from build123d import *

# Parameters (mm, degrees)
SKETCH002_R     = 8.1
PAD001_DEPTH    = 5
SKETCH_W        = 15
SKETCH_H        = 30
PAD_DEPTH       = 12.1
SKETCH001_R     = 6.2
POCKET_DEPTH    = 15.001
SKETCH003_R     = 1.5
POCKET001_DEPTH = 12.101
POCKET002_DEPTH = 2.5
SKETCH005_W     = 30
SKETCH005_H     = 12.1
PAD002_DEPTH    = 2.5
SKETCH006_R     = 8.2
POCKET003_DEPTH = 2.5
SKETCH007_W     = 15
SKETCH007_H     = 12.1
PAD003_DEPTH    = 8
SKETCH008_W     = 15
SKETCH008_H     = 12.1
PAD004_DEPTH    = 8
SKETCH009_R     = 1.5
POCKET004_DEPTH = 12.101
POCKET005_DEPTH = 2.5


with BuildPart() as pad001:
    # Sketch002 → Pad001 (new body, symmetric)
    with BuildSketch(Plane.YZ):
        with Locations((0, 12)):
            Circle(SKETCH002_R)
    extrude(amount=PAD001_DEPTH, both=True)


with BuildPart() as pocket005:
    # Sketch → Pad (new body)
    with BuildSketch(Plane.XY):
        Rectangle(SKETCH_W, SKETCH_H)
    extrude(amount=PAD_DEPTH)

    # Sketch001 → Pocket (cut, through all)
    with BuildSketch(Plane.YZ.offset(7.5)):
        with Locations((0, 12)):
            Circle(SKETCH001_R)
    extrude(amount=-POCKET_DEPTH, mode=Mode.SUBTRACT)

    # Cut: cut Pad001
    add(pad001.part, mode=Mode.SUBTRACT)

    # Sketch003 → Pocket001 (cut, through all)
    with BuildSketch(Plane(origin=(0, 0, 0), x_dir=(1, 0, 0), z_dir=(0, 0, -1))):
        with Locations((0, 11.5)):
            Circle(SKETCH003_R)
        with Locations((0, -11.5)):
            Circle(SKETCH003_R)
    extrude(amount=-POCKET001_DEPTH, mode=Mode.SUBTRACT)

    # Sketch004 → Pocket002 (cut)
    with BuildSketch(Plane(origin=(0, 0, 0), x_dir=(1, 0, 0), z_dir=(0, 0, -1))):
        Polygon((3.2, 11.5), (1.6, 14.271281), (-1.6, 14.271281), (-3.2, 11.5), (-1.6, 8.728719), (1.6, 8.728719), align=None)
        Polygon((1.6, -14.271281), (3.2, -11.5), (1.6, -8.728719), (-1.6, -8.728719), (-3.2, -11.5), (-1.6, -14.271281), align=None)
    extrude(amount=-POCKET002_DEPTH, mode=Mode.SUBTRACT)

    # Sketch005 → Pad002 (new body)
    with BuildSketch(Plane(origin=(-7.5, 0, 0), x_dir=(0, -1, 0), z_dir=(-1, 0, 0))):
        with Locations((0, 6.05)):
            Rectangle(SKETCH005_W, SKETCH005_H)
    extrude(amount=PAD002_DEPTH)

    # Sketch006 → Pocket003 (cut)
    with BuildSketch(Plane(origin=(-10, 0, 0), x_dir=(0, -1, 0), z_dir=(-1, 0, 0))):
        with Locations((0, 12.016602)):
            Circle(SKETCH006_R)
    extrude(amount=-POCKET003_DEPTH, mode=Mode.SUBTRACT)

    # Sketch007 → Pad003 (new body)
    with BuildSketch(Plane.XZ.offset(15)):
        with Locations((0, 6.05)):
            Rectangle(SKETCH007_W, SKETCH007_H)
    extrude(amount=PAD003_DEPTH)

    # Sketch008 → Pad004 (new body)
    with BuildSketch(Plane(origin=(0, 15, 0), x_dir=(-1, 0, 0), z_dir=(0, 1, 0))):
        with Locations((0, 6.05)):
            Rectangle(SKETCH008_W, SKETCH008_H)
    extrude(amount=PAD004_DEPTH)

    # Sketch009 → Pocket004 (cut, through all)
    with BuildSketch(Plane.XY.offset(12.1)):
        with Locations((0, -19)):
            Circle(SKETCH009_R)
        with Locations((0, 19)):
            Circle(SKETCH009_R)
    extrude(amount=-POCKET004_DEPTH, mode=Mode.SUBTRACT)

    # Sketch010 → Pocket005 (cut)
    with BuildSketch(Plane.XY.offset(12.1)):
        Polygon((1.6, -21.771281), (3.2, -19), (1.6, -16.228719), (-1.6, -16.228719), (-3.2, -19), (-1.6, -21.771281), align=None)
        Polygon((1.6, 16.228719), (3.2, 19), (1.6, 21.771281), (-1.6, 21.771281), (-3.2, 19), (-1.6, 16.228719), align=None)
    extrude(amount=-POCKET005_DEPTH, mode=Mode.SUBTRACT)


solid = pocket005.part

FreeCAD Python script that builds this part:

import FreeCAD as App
import Part
import Sketcher
Q = App.Units.Quantity

doc = App.newDocument("Part")
body = doc.addObject("PartDesign::Body", "Body")

# Sketch on YZ plane
sketch1 = body.newObject("Sketcher::SketchObject", "Sketch")
sketch1.AttachmentSupport = (doc.getObject("YZ_Plane"), [""])
sketch1.MapMode = "FlatFace"
sketch1.addGeometry(Part.Circle(App.Vector(0, 12, 0), App.Vector(0, 0, 1), 8), False)
sketch1.addConstraint([
    Sketcher.Constraint("PointOnObject", 0, 3, -2),
    Sketcher.Constraint("Diameter", 0, 16.2),
    Sketcher.Constraint("DistanceY", -1, 1, 0, 3, 12.0),
])
pad1 = body.newObject("PartDesign::Pad", "Pad")
pad1.Profile = sketch1
pad1.Length = 10
pad1.Midplane = True
body2 = doc.addObject("PartDesign::Body", "Body001")

# Sketch on XY plane
sketch2 = body2.newObject("Sketcher::SketchObject", "Sketch001")
sketch2.AttachmentSupport = (doc.getObject("XY_Plane001"), [""])
sketch2.MapMode = "FlatFace"
sketch2.addGeometry([
    Part.LineSegment(App.Vector(-8, 15, 0), App.Vector(-8, -15, 0)),
    Part.LineSegment(App.Vector(-8, -15, 0), App.Vector(8, -15, 0)),
    Part.LineSegment(App.Vector(8, -15, 0), App.Vector(8, 15, 0)),
    Part.LineSegment(App.Vector(8, 15, 0), App.Vector(-8, 15, 0)),
], False)
sketch2.addConstraint([
    Sketcher.Constraint("Coincident", 0, 2, 1, 1),
    Sketcher.Constraint("Coincident", 1, 2, 2, 1),
    Sketcher.Constraint("Coincident", 2, 2, 3, 1),
    Sketcher.Constraint("Coincident", 3, 2, 0, 1),
    Sketcher.Constraint("Vertical", 0),
    Sketcher.Constraint("Horizontal", 1),
    Sketcher.Constraint("Vertical", 2),
    Sketcher.Constraint("Horizontal", 3),
    Sketcher.Constraint("Symmetric", 0, 2, 2, 2, -1, 1),
    Sketcher.Constraint("DistanceX", 1, 1, 1, 2, 15.0),
    Sketcher.Constraint("DistanceY", 0, 2, 0, 1, 30.0),
])
pad2 = body2.newObject("PartDesign::Pad", "Pad001")
pad2.Profile = sketch2
pad2.Length = 12.1

# Sketch on YZ plane
sketch3 = body2.newObject("Sketcher::SketchObject", "Sketch002")
sketch3.AttachmentSupport = (doc.getObject("YZ_Plane001"), [""])
sketch3.MapMode = "FlatFace"
sketch3.AttachmentOffset = App.Placement(App.Vector(0, 0, 7.5), App.Rotation())
sketch3.addGeometry(Part.Circle(App.Vector(0, 12, 0), App.Vector(0, 0, 1), 6), False)
sketch3.addConstraint([
    Sketcher.Constraint("PointOnObject", 0, 3, -2),
    Sketcher.Constraint("Diameter", 0, 12.4),
    Sketcher.Constraint("DistanceY", -1, 1, 0, 3, 12.0),
])
pocket1 = body2.newObject("PartDesign::Pocket", "Pocket")
pocket1.Profile = sketch3
pocket1.Type = "ThroughAll"
doc.recompute()

boolean = body2.newObject("PartDesign::Boolean", "Boolean")
boolean.Type = "Cut"
boolean.addObjects([body])

# Sketch on XY plane
sketch4 = body2.newObject("Sketcher::SketchObject", "Sketch003")
sketch4.AttachmentSupport = (doc.getObject("XY_Plane001"), [""])
sketch4.MapMode = "FlatFace"
sketch4.addGeometry([
    Part.Circle(App.Vector(0, -11.5, 0), App.Vector(0, 0, 1), 1.5),
    Part.Circle(App.Vector(0, 11.5, 0), App.Vector(0, 0, 1), 1.5),
], False)
sketch4.addConstraint([
    Sketcher.Constraint("Equal", 0, 1),
    Sketcher.Constraint("Symmetric", 0, 3, 1, 3, -1, 1),
    Sketcher.Constraint("PointOnObject", 0, 3, -2),
    Sketcher.Constraint("Diameter", 0, 3.0),
    Sketcher.Constraint("DistanceY", 0, 3, 1, 3, 23.0),
])
pocket2 = body2.newObject("PartDesign::Pocket", "Pocket001")
pocket2.Profile = sketch4
pocket2.Type = "ThroughAll"
pocket2.Reversed = True

# Sketch on XY plane
sketch5 = body2.newObject("Sketcher::SketchObject", "Sketch004")
sketch5.AttachmentSupport = (doc.getObject("XY_Plane001"), [""])
sketch5.MapMode = "FlatFace"
sketch5.addGeometry([
    Part.LineSegment(App.Vector(3.2, -11.5, 0), App.Vector(1.6, -14.3, 0)),  # 0
    Part.LineSegment(App.Vector(1.6, -14.3, 0), App.Vector(-1.6, -14.3, 0)),  # 1
    Part.LineSegment(App.Vector(-1.6, -14.3, 0), App.Vector(-3.2, -11.5, 0)),  # 2
    Part.LineSegment(App.Vector(-3.2, -11.5, 0), App.Vector(-1.6, -8.7, 0)),  # 3
    Part.LineSegment(App.Vector(-1.6, -8.7, 0), App.Vector(1.6, -8.7, 0)),  # 4
    Part.LineSegment(App.Vector(1.6, -8.7, 0), App.Vector(3.2, -11.5, 0)),  # 5
    Part.LineSegment(App.Vector(1.6, 14.3, 0), App.Vector(3.2, 11.5, 0)),  # 6
    Part.LineSegment(App.Vector(3.2, 11.5, 0), App.Vector(1.6, 8.7, 0)),  # 7
    Part.LineSegment(App.Vector(1.6, 8.7, 0), App.Vector(-1.6, 8.7, 0)),  # 8
    Part.LineSegment(App.Vector(-1.6, 8.7, 0), App.Vector(-3.2, 11.5, 0)),  # 9
    Part.LineSegment(App.Vector(-3.2, 11.5, 0), App.Vector(-1.6, 14.3, 0)),  # 10
    Part.LineSegment(App.Vector(-1.6, 14.3, 0), App.Vector(1.6, 14.3, 0)),  # 11
], False)
sketch5.addConstraint([
    Sketcher.Constraint("Coincident", 0, 2, 1, 1),
    Sketcher.Constraint("Coincident", 1, 2, 2, 1),
    Sketcher.Constraint("Coincident", 2, 2, 3, 1),
    Sketcher.Constraint("Coincident", 3, 2, 4, 1),
    Sketcher.Constraint("Coincident", 4, 2, 5, 1),
    Sketcher.Constraint("Coincident", 5, 2, 0, 1),
    Sketcher.Constraint("Coincident", 6, 2, 7, 1),
    Sketcher.Constraint("Coincident", 7, 2, 8, 1),
    Sketcher.Constraint("Coincident", 8, 2, 9, 1),
    Sketcher.Constraint("Coincident", 9, 2, 10, 1),
    Sketcher.Constraint("Coincident", 10, 2, 11, 1),
    Sketcher.Constraint("Coincident", 11, 2, 6, 1),
    Sketcher.Constraint("Horizontal", 1),
    Sketcher.Constraint("Horizontal", 4),
    Sketcher.Constraint("Horizontal", 8),
    Sketcher.Constraint("Horizontal", 11),
    Sketcher.Constraint("Symmetric", 2, 2, 6, 2, -1, 1),
    Sketcher.Constraint("Symmetric", 3, 2, 7, 2, -1, 1),
    Sketcher.Constraint("Symmetric", 5, 2, 9, 2, -1, 1),
    Sketcher.Constraint("Symmetric", 0, 2, 10, 2, -1, 1),
    Sketcher.Constraint("Symmetric", 2, 2, 5, 2, -2),
    Sketcher.Constraint("Parallel", 0, 3),
    Sketcher.Constraint("Parallel", 2, 5),
    Sketcher.Constraint("Parallel", 5, 6),
    Sketcher.Constraint("Parallel", 6, 9),
    Sketcher.Constraint("Vertical", 1, 2, 3, 2),
    Sketcher.Constraint("Vertical", 0, 2, 4, 2),
    Sketcher.Constraint("Angle", 0, Q("-120.000003 deg")),
    Sketcher.Constraint("DistanceX", 1, 2, 1, 1, 3.2),
    Sketcher.Constraint("DistanceY", 5, 2, 6, 2, 23.0),
    Sketcher.Constraint("Distance", 0, 3.2),
])
pocket3 = body2.newObject("PartDesign::Pocket", "Pocket002")
pocket3.Profile = sketch5
pocket3.Length = 2.5
pocket3.Reversed = True

# Sketch on YZ plane
sketch6 = body2.newObject("Sketcher::SketchObject", "Sketch005")
sketch6.AttachmentSupport = (doc.getObject("YZ_Plane001"), [""])
sketch6.MapMode = "FlatFace"
sketch6.AttachmentOffset = App.Placement(App.Vector(0, 0, -7.5), App.Rotation())
sketch6.addGeometry([
    Part.LineSegment(App.Vector(15, 12, 0), App.Vector(15, 0, 0)),
    Part.LineSegment(App.Vector(15, 0, 0), App.Vector(-15, 0, 0)),
    Part.LineSegment(App.Vector(-15, 0, 0), App.Vector(-15, 12, 0)),
    Part.LineSegment(App.Vector(-15, 12, 0), App.Vector(15, 12, 0)),
], False)
sketch6.addConstraint([
    Sketcher.Constraint("Coincident", 0, 2, 1, 1),
    Sketcher.Constraint("Coincident", 1, 2, 2, 1),
    Sketcher.Constraint("Coincident", 2, 2, 3, 1),
    Sketcher.Constraint("Coincident", 3, 2, 0, 1),
    Sketcher.Constraint("Vertical", 0),
    Sketcher.Constraint("Horizontal", 1),
    Sketcher.Constraint("Vertical", 2),
    Sketcher.Constraint("Horizontal", 3),
    Sketcher.Constraint("Symmetric", 0, 2, 1, 2, -1, 1),
    Sketcher.Constraint("DistanceX", 1, 2, 1, 1, 30.0),
    Sketcher.Constraint("DistanceY", 0, 2, 0, 1, 12.1),
])
pad3 = body2.newObject("PartDesign::Pad", "Pad002")
pad3.Profile = sketch6
pad3.Length = 2.5
pad3.Reversed = True

# Sketch on YZ plane
sketch7 = body2.newObject("Sketcher::SketchObject", "Sketch006")
sketch7.AttachmentSupport = (doc.getObject("YZ_Plane001"), [""])
sketch7.MapMode = "FlatFace"
sketch7.AttachmentOffset = App.Placement(App.Vector(0, 0, -10), App.Rotation())
sketch7.addGeometry(Part.Circle(App.Vector(0, 12, 0), App.Vector(0, 0, 1), 8), False)
sketch7.addConstraint([
    Sketcher.Constraint("PointOnObject", 0, 3, -2),
    Sketcher.Constraint("Diameter", 0, 16.4),
    Sketcher.Constraint("DistanceY", -1, 1, 0, 3, 12.016602),
])
pocket4 = body2.newObject("PartDesign::Pocket", "Pocket003")
pocket4.Profile = sketch7
pocket4.Length = 2.5
pocket4.Reversed = True

# Sketch on XZ plane
sketch8 = body2.newObject("Sketcher::SketchObject", "Sketch007")
sketch8.AttachmentSupport = (doc.getObject("XZ_Plane001"), [""])
sketch8.MapMode = "FlatFace"
sketch8.AttachmentOffset = App.Placement(App.Vector(0, 0, 15), App.Rotation())
sketch8.addGeometry([
    Part.LineSegment(App.Vector(-8, 12, 0), App.Vector(-8, 0, 0)),
    Part.LineSegment(App.Vector(-8, 0, 0), App.Vector(8, 0, 0)),
    Part.LineSegment(App.Vector(8, 0, 0), App.Vector(8, 12, 0)),
    Part.LineSegment(App.Vector(8, 12, 0), App.Vector(-8, 12, 0)),
], False)
sketch8.addConstraint([
    Sketcher.Constraint("Coincident", 0, 2, 1, 1),
    Sketcher.Constraint("Coincident", 1, 2, 2, 1),
    Sketcher.Constraint("Coincident", 2, 2, 3, 1),
    Sketcher.Constraint("Coincident", 3, 2, 0, 1),
    Sketcher.Constraint("Vertical", 0),
    Sketcher.Constraint("Horizontal", 1),
    Sketcher.Constraint("Vertical", 2),
    Sketcher.Constraint("Horizontal", 3),
    Sketcher.Constraint("Symmetric", 0, 2, 1, 2, -1, 1),
    Sketcher.Constraint("DistanceX", 1, 1, 1, 2, 15.0),
    Sketcher.Constraint("DistanceY", 0, 2, 0, 1, 12.1),
])
pad4 = body2.newObject("PartDesign::Pad", "Pad003")
pad4.Profile = sketch8
pad4.Length = 8

# Sketch on XZ plane
sketch9 = body2.newObject("Sketcher::SketchObject", "Sketch008")
sketch9.AttachmentSupport = (doc.getObject("XZ_Plane001"), [""])
sketch9.MapMode = "FlatFace"
sketch9.AttachmentOffset = App.Placement(App.Vector(0, 0, -15), App.Rotation())
sketch9.addGeometry([
    Part.LineSegment(App.Vector(8, 12, 0), App.Vector(8, 0, 0)),
    Part.LineSegment(App.Vector(8, 0, 0), App.Vector(-8, 0, 0)),
    Part.LineSegment(App.Vector(-8, 0, 0), App.Vector(-8, 12, 0)),
    Part.LineSegment(App.Vector(-8, 12, 0), App.Vector(8, 12, 0)),
], False)
sketch9.addConstraint([
    Sketcher.Constraint("Coincident", 0, 2, 1, 1),
    Sketcher.Constraint("Coincident", 1, 2, 2, 1),
    Sketcher.Constraint("Coincident", 2, 2, 3, 1),
    Sketcher.Constraint("Coincident", 3, 2, 0, 1),
    Sketcher.Constraint("Vertical", 0),
    Sketcher.Constraint("Horizontal", 1),
    Sketcher.Constraint("Vertical", 2),
    Sketcher.Constraint("Horizontal", 3),
    Sketcher.Constraint("Symmetric", 0, 2, 1, 2, -1, 1),
    Sketcher.Constraint("DistanceX", 1, 2, 1, 1, 15.0),
    Sketcher.Constraint("DistanceY", 0, 2, 0, 1, 12.1),
])
pad5 = body2.newObject("PartDesign::Pad", "Pad004")
pad5.Profile = sketch9
pad5.Length = 8
pad5.Reversed = True

# Sketch on XY plane
sketch10 = body2.newObject("Sketcher::SketchObject", "Sketch009")
sketch10.AttachmentSupport = (doc.getObject("XY_Plane001"), [""])
sketch10.MapMode = "FlatFace"
sketch10.AttachmentOffset = App.Placement(App.Vector(0, 0, 12.1), App.Rotation())
sketch10.addGeometry([
    Part.Circle(App.Vector(0, -19, 0), App.Vector(0, 0, 1), 1.5),
    Part.Circle(App.Vector(0, 19, 0), App.Vector(0, 0, 1), 1.5),
], False)
sketch10.addConstraint([
    Sketcher.Constraint("Equal", 0, 1),
    Sketcher.Constraint("Symmetric", 0, 3, 1, 3, -1, 1),
    Sketcher.Constraint("PointOnObject", 0, 3, -2),
    Sketcher.Constraint("Diameter", 0, 3.0),
    Sketcher.Constraint("DistanceY", 0, 3, -1, 1, 19.0),
])
pocket5 = body2.newObject("PartDesign::Pocket", "Pocket004")
pocket5.Profile = sketch10
pocket5.Type = "ThroughAll"

# Sketch on XY plane
sketch11 = body2.newObject("Sketcher::SketchObject", "Sketch010")
sketch11.AttachmentSupport = (doc.getObject("XY_Plane001"), [""])
sketch11.MapMode = "FlatFace"
sketch11.AttachmentOffset = App.Placement(App.Vector(0, 0, 12.1), App.Rotation())
sketch11.addGeometry([
    Part.LineSegment(App.Vector(1.6, -21.8, 0), App.Vector(3.2, -19, 0)),  # 0
    Part.LineSegment(App.Vector(3.2, -19, 0), App.Vector(1.6, -16.2, 0)),  # 1
    Part.LineSegment(App.Vector(1.6, -16.2, 0), App.Vector(-1.6, -16.2, 0)),  # 2
    Part.LineSegment(App.Vector(-1.6, -16.2, 0), App.Vector(-3.2, -19, 0)),  # 3
    Part.LineSegment(App.Vector(-3.2, -19, 0), App.Vector(-1.6, -21.8, 0)),  # 4
    Part.LineSegment(App.Vector(-1.6, -21.8, 0), App.Vector(1.6, -21.8, 0)),  # 5
    Part.LineSegment(App.Vector(1.6, 16.2, 0), App.Vector(3.2, 19, 0)),  # 6
    Part.LineSegment(App.Vector(3.2, 19, 0), App.Vector(1.6, 21.8, 0)),  # 7
    Part.LineSegment(App.Vector(1.6, 21.8, 0), App.Vector(-1.6, 21.8, 0)),  # 8
    Part.LineSegment(App.Vector(-1.6, 21.8, 0), App.Vector(-3.2, 19, 0)),  # 9
    Part.LineSegment(App.Vector(-3.2, 19, 0), App.Vector(-1.6, 16.2, 0)),  # 10
    Part.LineSegment(App.Vector(-1.6, 16.2, 0), App.Vector(1.6, 16.2, 0)),  # 11
], False)
sketch11.addConstraint([
    Sketcher.Constraint("Coincident", 0, 2, 1, 1),
    Sketcher.Constraint("Coincident", 1, 2, 2, 1),
    Sketcher.Constraint("Coincident", 2, 2, 3, 1),
    Sketcher.Constraint("Coincident", 3, 2, 4, 1),
    Sketcher.Constraint("Coincident", 4, 2, 5, 1),
    Sketcher.Constraint("Coincident", 5, 2, 0, 1),
    Sketcher.Constraint("Coincident", 6, 2, 7, 1),
    Sketcher.Constraint("Coincident", 7, 2, 8, 1),
    Sketcher.Constraint("Coincident", 8, 2, 9, 1),
    Sketcher.Constraint("Coincident", 9, 2, 10, 1),
    Sketcher.Constraint("Coincident", 10, 2, 11, 1),
    Sketcher.Constraint("Coincident", 11, 2, 6, 1),
    Sketcher.Constraint("Horizontal", 2),
    Sketcher.Constraint("Horizontal", 5),
    Sketcher.Constraint("Horizontal", 8),
    Sketcher.Constraint("Horizontal", 11),
    Sketcher.Constraint("Symmetric", 3, 2, 6, 2, -1, 1),
    Sketcher.Constraint("Symmetric", 4, 2, 7, 2, -1, 1),
    Sketcher.Constraint("Symmetric", 0, 2, 9, 2, -1, 1),
    Sketcher.Constraint("Symmetric", 1, 2, 10, 2, -1, 1),
    Sketcher.Constraint("Symmetric", 0, 2, 3, 2, -2),
    Sketcher.Constraint("Parallel", 0, 3),
    Sketcher.Constraint("Parallel", 1, 4),
    Sketcher.Constraint("Parallel", 3, 6),
    Sketcher.Constraint("Parallel", 6, 9),
    Sketcher.Constraint("Vertical", 2, 2, 4, 2),
    Sketcher.Constraint("Vertical", 1, 2, 5, 2),
    Sketcher.Constraint("Angle", 0, Q("59.999997 deg")),
    Sketcher.Constraint("DistanceX", 2, 2, 2, 1, 3.2),
    Sketcher.Constraint("DistanceY", 0, 2, -1, 1, 19.0),
    Sketcher.Constraint("Distance", 0, 3.2),
])
pocket6 = body2.newObject("PartDesign::Pocket", "Pocket005")
pocket6.Profile = sketch11
pocket6.Length = 2.5

doc.recompute()
